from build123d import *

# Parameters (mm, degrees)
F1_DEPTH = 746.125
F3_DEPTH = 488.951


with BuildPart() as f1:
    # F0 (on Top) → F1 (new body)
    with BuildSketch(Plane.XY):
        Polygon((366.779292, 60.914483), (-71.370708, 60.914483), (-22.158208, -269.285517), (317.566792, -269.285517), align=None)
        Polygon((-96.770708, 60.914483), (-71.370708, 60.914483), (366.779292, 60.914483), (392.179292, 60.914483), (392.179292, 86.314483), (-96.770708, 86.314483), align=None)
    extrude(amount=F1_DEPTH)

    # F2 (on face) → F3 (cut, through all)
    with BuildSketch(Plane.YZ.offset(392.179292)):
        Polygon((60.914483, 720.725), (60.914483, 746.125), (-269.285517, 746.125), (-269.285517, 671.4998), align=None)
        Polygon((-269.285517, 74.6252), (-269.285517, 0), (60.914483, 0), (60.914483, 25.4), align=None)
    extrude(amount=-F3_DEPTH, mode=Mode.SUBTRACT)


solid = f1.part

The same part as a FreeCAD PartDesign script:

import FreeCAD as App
import Part
import Sketcher
Q = App.Units.Quantity


def add_polygon(sketch, points):
    """Adds a closed chain of lines whose ends are joined by coincident constraints."""
    first, n = sketch.GeometryCount, len(points)
    for a, b in zip(points, points[1:] + points[:1]):
        sketch.addGeometry(Part.LineSegment(App.Vector(*a, 0), App.Vector(*b, 0)), False)
    for i in range(n):
        sketch.addConstraint(Sketcher.Constraint("Coincident", first + i, 2, first + (i + 1) % n, 1))

doc = App.newDocument("Part")
body = doc.addObject("PartDesign::Body", "Body")

# Sketch on XY plane
sketch1 = body.newObject("Sketcher::SketchObject", "Sketch")
sketch1.AttachmentSupport = (doc.getObject("XY_Plane"), [""])
sketch1.MapMode = "FlatFace"
add_polygon(sketch1, [(-71, 61), (-22, -269), (318, -269), (367, 61), (392, 61), (392, 86), (-97, 86), (-97, 61)])  # lines 0-7
sketch1.addConstraint([
    Sketcher.Constraint("Horizontal", 1),
    Sketcher.Constraint("Horizontal", 3),
    Sketcher.Constraint("Vertical", 4),
    Sketcher.Constraint("Horizontal", 5),
    Sketcher.Constraint("Vertical", 6),
    Sketcher.Constraint("Horizontal", 7),
    Sketcher.Constraint("Horizontal", 3, 2, 6, 2),
    Sketcher.Constraint("Equal", 3, 7),
    Sketcher.Constraint("Equal", 7, 4),
    Sketcher.Constraint("Equal", 0, 2),
    Sketcher.Constraint("DistanceX", 3, 1, 3, 2, Q("1 in")),
    Sketcher.Constraint("DistanceY", 1, 2, 2, 2, Q("13 in")),
    Sketcher.Constraint("DistanceX", 5, 2, 5, 1, Q("19.25 in")),
    Sketcher.Constraint("DistanceX", 1, 1, 1, 2, Q("13.375 in")),
    Sketcher.Constraint("DistanceX", -1, 1, 1, 2, Q("317.566792 mm")),
    Sketcher.Constraint("DistanceY", 0, 2, -1, 1, Q("269.285517 mm")),
])
pad1 = body.newObject("PartDesign::Pad", "Pad")
pad1.Profile = sketch1
pad1.Length = Q("29.375 in")

# Sketch on YZ plane
sketch2 = body.newObject("Sketcher::SketchObject", "Sketch001")
sketch2.AttachmentSupport = (doc.getObject("YZ_Plane"), [""])
sketch2.MapMode = "FlatFace"
sketch2.AttachmentOffset = App.Placement(App.Vector(0, 0, 392.179292), App.Rotation())
add_polygon(sketch2, [(61, 721), (61, 746), (-269, 746), (-269, 671)])  # lines 0-3
add_polygon(sketch2, [(-269, 75), (-269, 0), (61, 0), (61, 25)])  # lines 4-7
sketch2.addConstraint([
    Sketcher.Constraint("Vertical", 0),
    Sketcher.Constraint("Horizontal", 1),
    Sketcher.Constraint("Vertical", 2),
    Sketcher.Constraint("Vertical", 4),
    Sketcher.Constraint("Horizontal", 5),
    Sketcher.Constraint("Vertical", 6),
    Sketcher.Constraint("PointOnObject", 4, 2, -1),
    Sketcher.Constraint("Vertical", 2, 2, 4, 2),
    Sketcher.Constraint("Vertical", 3, 2, 5, 2),
    Sketcher.Constraint("Equal", 2, 4),
    Sketcher.Constraint("Equal", 0, 6),
    Sketcher.Constraint("DistanceX", 1, 2, 1, 1, Q("13 in")),
    Sketcher.Constraint("DistanceY", 0, 1, 0, 2, Q("1 in")),
    Sketcher.Constraint("DistanceY", 2, 2, 2, 1, Q("2.938 in")),
    Sketcher.Constraint("DistanceY", -1, 1, 0, 2, Q("29.375 in")),
    Sketcher.Constraint("DistanceX", -1, 1, 0, 2, Q("60.914483 mm")),
])
pocket1 = body.newObject("PartDesign::Pocket", "Pocket")
pocket1.Profile = sketch2
pocket1.Type = "ThroughAll"

doc.recompute()
